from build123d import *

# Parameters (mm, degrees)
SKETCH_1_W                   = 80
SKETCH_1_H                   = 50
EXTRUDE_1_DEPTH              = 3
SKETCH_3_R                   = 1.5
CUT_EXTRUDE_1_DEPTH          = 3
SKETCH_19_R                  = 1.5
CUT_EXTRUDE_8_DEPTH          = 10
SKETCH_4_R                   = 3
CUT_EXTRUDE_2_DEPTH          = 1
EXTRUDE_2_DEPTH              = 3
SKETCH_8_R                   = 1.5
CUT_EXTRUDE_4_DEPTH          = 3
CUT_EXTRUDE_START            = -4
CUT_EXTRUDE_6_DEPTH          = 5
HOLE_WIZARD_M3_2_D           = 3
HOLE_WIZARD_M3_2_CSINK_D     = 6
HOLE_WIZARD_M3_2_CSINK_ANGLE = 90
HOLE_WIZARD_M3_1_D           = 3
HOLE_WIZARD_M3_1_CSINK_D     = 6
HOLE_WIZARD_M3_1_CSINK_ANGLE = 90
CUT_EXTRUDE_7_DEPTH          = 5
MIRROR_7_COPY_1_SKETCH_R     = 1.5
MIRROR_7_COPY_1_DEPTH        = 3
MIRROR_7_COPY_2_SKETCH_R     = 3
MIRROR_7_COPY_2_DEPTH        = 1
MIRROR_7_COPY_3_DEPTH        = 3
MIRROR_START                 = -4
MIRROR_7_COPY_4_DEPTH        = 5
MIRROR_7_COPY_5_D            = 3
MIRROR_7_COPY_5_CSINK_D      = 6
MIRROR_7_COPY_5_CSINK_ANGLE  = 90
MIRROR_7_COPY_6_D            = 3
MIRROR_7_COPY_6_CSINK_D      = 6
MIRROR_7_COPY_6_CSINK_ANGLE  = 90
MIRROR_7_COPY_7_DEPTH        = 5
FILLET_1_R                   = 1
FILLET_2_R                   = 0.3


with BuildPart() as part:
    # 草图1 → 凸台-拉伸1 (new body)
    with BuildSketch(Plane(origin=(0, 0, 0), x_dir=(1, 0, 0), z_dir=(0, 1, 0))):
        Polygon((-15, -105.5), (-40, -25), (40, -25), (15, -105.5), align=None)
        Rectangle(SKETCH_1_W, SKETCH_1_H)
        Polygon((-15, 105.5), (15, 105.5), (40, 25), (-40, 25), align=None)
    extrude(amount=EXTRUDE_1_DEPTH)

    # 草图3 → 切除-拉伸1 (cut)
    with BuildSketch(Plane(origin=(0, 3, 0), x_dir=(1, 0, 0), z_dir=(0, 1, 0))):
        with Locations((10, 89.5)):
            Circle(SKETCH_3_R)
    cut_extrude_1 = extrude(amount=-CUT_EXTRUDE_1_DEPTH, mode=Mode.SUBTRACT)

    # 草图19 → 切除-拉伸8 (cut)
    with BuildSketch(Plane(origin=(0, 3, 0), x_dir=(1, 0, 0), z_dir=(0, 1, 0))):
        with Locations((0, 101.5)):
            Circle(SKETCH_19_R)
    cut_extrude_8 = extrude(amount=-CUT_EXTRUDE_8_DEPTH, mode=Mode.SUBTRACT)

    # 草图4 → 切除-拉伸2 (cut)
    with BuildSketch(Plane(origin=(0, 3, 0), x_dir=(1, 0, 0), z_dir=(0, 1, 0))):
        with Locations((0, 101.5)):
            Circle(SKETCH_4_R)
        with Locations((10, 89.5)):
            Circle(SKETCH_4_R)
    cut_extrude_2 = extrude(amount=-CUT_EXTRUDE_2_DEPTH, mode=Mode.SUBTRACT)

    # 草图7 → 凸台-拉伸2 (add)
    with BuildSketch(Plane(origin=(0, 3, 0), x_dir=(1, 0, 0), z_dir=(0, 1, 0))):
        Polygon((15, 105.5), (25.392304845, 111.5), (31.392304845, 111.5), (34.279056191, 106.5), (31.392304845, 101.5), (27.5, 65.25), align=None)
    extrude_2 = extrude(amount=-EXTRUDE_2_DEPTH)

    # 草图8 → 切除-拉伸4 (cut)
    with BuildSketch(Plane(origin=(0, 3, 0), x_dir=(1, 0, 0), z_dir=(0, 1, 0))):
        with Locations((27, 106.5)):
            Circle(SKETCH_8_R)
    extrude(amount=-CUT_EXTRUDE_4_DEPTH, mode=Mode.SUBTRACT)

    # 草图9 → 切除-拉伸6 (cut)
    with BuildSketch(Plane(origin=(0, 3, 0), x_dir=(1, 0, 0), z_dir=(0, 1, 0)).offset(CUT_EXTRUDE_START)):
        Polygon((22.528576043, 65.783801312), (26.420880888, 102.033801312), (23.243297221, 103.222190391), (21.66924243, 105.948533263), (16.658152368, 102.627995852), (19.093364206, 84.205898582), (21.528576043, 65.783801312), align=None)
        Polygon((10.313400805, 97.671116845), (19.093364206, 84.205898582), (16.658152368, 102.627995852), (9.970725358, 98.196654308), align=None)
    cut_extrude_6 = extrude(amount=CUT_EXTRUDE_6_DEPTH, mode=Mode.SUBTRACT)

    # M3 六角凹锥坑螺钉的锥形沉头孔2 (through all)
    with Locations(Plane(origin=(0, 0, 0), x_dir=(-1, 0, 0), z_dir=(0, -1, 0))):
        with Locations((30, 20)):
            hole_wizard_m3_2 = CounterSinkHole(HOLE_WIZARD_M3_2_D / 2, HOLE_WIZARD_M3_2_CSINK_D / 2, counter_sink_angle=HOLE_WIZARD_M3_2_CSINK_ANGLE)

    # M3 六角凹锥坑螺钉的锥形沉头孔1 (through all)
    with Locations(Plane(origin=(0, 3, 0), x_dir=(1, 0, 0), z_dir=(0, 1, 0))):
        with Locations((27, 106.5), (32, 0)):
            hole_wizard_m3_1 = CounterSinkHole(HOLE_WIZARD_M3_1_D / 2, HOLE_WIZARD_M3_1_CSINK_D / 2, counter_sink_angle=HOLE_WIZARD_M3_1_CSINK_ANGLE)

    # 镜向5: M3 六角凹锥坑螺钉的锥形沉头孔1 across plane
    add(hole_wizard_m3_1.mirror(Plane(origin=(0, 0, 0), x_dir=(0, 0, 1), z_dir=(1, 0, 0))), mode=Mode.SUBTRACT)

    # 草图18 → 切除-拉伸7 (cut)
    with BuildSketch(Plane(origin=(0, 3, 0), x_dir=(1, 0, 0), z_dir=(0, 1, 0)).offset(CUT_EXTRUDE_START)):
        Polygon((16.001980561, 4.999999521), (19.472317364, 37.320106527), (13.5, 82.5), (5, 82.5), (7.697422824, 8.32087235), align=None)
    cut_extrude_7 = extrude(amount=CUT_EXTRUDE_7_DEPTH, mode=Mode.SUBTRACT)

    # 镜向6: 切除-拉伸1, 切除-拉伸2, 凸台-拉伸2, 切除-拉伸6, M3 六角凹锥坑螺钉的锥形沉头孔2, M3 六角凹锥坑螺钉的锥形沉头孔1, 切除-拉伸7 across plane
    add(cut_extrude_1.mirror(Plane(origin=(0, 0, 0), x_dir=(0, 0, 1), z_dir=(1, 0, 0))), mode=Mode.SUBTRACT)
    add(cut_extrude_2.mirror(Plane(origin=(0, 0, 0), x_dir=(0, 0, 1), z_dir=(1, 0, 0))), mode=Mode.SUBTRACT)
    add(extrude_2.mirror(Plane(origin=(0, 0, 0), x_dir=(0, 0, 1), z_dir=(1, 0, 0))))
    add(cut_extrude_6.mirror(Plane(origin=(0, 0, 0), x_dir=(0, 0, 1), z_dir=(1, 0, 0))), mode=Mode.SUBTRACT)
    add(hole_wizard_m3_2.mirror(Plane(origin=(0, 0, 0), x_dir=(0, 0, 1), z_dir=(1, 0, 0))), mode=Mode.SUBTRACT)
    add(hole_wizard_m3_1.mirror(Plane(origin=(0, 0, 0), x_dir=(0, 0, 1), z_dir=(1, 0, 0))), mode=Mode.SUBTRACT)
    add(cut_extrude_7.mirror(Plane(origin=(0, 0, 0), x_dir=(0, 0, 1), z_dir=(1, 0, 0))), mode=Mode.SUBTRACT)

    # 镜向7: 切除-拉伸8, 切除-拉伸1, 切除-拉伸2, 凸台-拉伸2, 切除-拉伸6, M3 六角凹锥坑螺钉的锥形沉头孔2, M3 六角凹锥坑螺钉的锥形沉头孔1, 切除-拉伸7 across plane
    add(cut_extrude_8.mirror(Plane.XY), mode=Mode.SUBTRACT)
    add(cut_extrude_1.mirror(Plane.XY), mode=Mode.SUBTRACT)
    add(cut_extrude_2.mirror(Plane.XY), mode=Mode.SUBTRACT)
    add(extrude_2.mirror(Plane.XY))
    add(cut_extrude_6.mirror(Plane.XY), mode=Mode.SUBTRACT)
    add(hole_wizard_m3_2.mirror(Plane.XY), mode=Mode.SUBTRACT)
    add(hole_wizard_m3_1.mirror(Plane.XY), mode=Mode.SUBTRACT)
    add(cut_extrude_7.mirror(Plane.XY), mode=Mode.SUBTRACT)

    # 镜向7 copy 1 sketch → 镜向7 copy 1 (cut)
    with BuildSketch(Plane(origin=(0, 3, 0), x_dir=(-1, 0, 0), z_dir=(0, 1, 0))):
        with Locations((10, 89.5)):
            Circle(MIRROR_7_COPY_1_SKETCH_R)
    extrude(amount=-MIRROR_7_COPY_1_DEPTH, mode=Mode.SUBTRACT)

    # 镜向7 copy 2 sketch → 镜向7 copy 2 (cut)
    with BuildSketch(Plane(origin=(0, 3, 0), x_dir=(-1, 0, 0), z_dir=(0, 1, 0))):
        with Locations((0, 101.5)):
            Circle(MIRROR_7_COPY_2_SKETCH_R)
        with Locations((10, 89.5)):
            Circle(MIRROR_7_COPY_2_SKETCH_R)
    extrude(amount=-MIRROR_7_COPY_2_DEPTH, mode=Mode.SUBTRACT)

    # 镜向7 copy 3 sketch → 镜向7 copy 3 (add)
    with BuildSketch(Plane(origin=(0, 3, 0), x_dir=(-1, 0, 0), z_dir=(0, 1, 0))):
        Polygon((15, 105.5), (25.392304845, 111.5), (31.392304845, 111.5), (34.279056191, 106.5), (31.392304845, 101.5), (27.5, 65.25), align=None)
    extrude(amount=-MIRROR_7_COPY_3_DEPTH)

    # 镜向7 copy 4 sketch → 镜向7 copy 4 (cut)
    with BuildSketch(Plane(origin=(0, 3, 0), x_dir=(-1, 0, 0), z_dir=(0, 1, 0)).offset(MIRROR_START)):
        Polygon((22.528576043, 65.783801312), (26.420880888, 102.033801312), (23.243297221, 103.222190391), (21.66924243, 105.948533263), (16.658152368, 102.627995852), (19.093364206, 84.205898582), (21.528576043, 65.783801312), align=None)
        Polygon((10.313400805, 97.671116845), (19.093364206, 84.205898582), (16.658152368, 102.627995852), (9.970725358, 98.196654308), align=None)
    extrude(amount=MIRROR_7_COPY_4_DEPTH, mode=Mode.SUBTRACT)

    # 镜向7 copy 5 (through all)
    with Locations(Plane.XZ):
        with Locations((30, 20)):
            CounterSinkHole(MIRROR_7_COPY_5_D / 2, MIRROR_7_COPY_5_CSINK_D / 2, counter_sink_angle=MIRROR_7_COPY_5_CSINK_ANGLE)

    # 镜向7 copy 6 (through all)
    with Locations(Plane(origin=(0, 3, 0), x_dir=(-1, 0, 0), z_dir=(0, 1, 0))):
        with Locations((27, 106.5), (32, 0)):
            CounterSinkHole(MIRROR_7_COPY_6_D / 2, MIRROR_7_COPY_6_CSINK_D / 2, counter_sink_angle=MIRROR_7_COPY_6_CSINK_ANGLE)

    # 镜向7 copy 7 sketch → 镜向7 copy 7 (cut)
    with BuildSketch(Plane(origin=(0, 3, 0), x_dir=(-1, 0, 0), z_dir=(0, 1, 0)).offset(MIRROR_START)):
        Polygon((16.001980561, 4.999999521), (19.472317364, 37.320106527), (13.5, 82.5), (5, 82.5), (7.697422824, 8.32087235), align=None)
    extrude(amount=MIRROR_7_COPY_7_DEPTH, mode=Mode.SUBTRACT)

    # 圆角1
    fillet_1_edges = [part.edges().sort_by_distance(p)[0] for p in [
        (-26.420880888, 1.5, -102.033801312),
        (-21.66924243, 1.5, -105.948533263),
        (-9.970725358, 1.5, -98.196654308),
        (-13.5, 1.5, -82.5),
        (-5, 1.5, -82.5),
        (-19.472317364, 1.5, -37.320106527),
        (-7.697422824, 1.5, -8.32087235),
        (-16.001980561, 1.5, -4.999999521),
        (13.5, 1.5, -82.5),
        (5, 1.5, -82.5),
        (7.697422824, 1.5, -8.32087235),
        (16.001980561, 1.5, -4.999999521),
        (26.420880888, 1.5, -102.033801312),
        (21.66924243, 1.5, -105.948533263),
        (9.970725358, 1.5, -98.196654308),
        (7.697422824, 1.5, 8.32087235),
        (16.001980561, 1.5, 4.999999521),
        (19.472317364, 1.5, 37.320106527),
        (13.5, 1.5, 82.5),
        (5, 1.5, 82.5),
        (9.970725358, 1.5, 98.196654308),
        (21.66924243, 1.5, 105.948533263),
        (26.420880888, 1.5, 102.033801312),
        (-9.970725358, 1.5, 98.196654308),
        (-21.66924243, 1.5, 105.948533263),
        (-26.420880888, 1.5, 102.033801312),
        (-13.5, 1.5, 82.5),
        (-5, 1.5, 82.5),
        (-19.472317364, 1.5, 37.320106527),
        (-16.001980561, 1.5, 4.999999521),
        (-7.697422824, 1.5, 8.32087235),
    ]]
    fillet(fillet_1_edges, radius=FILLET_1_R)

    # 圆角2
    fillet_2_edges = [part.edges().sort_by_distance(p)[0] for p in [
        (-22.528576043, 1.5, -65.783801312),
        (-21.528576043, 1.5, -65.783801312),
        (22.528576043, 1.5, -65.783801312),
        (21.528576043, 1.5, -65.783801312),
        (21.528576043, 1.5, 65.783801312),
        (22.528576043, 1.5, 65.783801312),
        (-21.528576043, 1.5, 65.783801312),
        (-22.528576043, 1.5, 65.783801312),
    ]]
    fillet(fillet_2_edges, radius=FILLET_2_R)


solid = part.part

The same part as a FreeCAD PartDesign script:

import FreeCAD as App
import Part
import Sketcher

V = App.Vector
Q = App.Units.Quantity


def edges_at(feature, points):
    """Names of the edges that pass closest to the given points."""
    edges = feature.Shape.Edges
    near = lambda p: min(range(len(edges)), key=lambda i: edges[i].distToShape(Part.Vertex(*p))[0])
    return sorted({f"Edge{near(p) + 1}" for p in points})

doc = App.newDocument("Part")
body = doc.addObject("PartDesign::Body", "Body")

# Sketch on XZ plane
sketch1 = body.newObject("Sketcher::SketchObject", "Sketch")
sketch1.AttachmentSupport = (doc.getObject("XZ_Plane"), [""])
sketch1.MapMode = "FlatFace"
sketch1.addGeometry([
    Part.LineSegment(V(-40, 25, 0), V(-15, 105.5, 0)),  # 0
    Part.LineSegment(V(-15, 105.5, 0), V(15, 105.5, 0)),  # 1
    Part.LineSegment(V(15, 105.5, 0), V(40, 25, 0)),  # 2
    Part.LineSegment(V(40, 25, 0), V(40, -25, 0)),  # 3
    Part.LineSegment(V(40, -25, 0), V(15, -105.5, 0)),  # 4
    Part.LineSegment(V(15, -105.5, 0), V(-15, -105.5, 0)),  # 5
    Part.LineSegment(V(-15, -105.5, 0), V(-40, -25, 0)),  # 6
    Part.LineSegment(V(-40, -25, 0), V(-40, 25, 0)),  # 7
], False)
sketch1.addConstraint([
    Sketcher.Constraint("Coincident", 0, 2, 1, 1),
    Sketcher.Constraint("Coincident", 1, 2, 2, 1),
    Sketcher.Constraint("Coincident", 2, 2, 3, 1),
    Sketcher.Constraint("Coincident", 3, 2, 4, 1),
    Sketcher.Constraint("Coincident", 4, 2, 5, 1),
    Sketcher.Constraint("Coincident", 5, 2, 6, 1),
    Sketcher.Constraint("Coincident", 6, 2, 7, 1),
    Sketcher.Constraint("Coincident", 7, 2, 0, 1),
    Sketcher.Constraint("Horizontal", 1),
    Sketcher.Constraint("Vertical", 3),
    Sketcher.Constraint("Horizontal", 5),
    Sketcher.Constraint("Vertical", 7),
    Sketcher.Constraint("Symmetric", 0, 2, 4, 2, -1, 1),
    Sketcher.Constraint("Symmetric", 2, 2, 6, 2, -1, 1),
    Sketcher.Constraint("Parallel", 0, 4),
    Sketcher.Constraint("Parallel", 2, 6),
    Sketcher.Constraint("Horizontal", 3, 2, 6, 2),
    Sketcher.Constraint("Vertical", 1, 2, 4, 2),
    Sketcher.Constraint("DistanceX", 1, 1, 1, 2, Q("30 mm")),
    Sketcher.Constraint("DistanceY", 3, 2, 3, 1, Q("50 mm")),
    Sketcher.Constraint("DistanceX", -1, 1, 2, 2, Q("40 mm")),
    Sketcher.Constraint("DistanceY", 4, 2, 1, 2, Q("211 mm")),
])
pad1 = body.newObject("PartDesign::Pad", "Pad")
pad1.Profile = sketch1
pad1.Length = 3
pad1.Reversed = True

# Sketch on XZ plane
sketch2 = body.newObject("Sketcher::SketchObject", "Sketch001")
sketch2.AttachmentSupport = (doc.getObject("XZ_Plane"), [""])
sketch2.MapMode = "FlatFace"
sketch2.AttachmentOffset = App.Placement(V(0, 0, -3), App.Rotation())
sketch2.addGeometry(Part.Circle(V(10, -89.5, 0), V(0, 0, 1), 1.5), False)
sketch2.addConstraint([
    Sketcher.Constraint("Diameter", 0, Q("3 mm")),
    Sketcher.Constraint("DistanceX", -1, 1, 0, 3, Q("10 mm")),
    Sketcher.Constraint("DistanceY", 0, 3, -1, 1, Q("89.5 mm")),
])
pocket1 = body.newObject("PartDesign::Pocket", "Pocket")
pocket1.Profile = sketch2
pocket1.Length = 3
pocket1.Reversed = True

# Sketch on XZ plane
sketch3 = body.newObject("Sketcher::SketchObject", "Sketch002")
sketch3.AttachmentSupport = (doc.getObject("XZ_Plane"), [""])
sketch3.MapMode = "FlatFace"
sketch3.AttachmentOffset = App.Placement(V(0, 0, -3), App.Rotation())
sketch3.addGeometry(Part.Circle(V(0, -101.5, 0), V(0, 0, 1), 1.5), False)
sketch3.addConstraint([
    Sketcher.Constraint("PointOnObject", 0, 3, -2),
    Sketcher.Constraint("Diameter", 0, Q("3 mm")),
    Sketcher.Constraint("DistanceY", 0, 3, -1, 1, Q("101.5 mm")),
])
pocket2 = body.newObject("PartDesign::Pocket", "Pocket001")
pocket2.Profile = sketch3
pocket2.Length = 10
pocket2.Reversed = True

# Sketch on XZ plane
sketch4 = body.newObject("Sketcher::SketchObject", "Sketch003")
sketch4.AttachmentSupport = (doc.getObject("XZ_Plane"), [""])
sketch4.MapMode = "FlatFace"
sketch4.AttachmentOffset = App.Placement(V(0, 0, -3), App.Rotation())
sketch4.addGeometry([
    Part.Circle(V(0, -101.5, 0), V(0, 0, 1), 3),
    Part.Circle(V(10, -89.5, 0), V(0, 0, 1), 3),
], False)
sketch4.addConstraint([
    Sketcher.Constraint("Equal", 0, 1),
    Sketcher.Constraint("PointOnObject", 0, 3, -2),
    Sketcher.Constraint("Diameter", 0, Q("6 mm")),
    Sketcher.Constraint("DistanceX", -1, 1, 1, 3, Q("10 mm")),
    Sketcher.Constraint("DistanceY", 0, 3, 1, 3, Q("12 mm")),
    Sketcher.Constraint("DistanceY", 0, 3, -1, 1, Q("101.5 mm")),
])
pocket3 = body.newObject("PartDesign::Pocket", "Pocket002")
pocket3.Profile = sketch4
pocket3.Length = 1
pocket3.Reversed = True

# Sketch on XZ plane
sketch5 = body.newObject("Sketcher::SketchObject", "Sketch004")
sketch5.AttachmentSupport = (doc.getObject("XZ_Plane"), [""])
sketch5.MapMode = "FlatFace"
sketch5.AttachmentOffset = App.Placement(V(0, 0, -3), App.Rotation())
sketch5.addGeometry([
    Part.LineSegment(V(25.392305, -111.5, 0), V(15, -105.5, 0)),  # 0
    Part.LineSegment(V(15, -105.5, 0), V(27.5, -65.25, 0)),  # 1
    Part.LineSegment(V(27.5, -65.25, 0), V(31.392305, -101.5, 0)),  # 2
    Part.LineSegment(V(31.392305, -101.5, 0), V(34.279056, -106.5, 0)),  # 3
    Part.LineSegment(V(34.279056, -106.5, 0), V(31.392305, -111.5, 0)),  # 4
    Part.LineSegment(V(31.392305, -111.5, 0), V(25.392305, -111.5, 0)),  # 5
], False)
sketch5.addConstraint([
    Sketcher.Constraint("Coincident", 0, 2, 1, 1),
    Sketcher.Constraint("Coincident", 1, 2, 2, 1),
    Sketcher.Constraint("Coincident", 2, 2, 3, 1),
    Sketcher.Constraint("Coincident", 3, 2, 4, 1),
    Sketcher.Constraint("Coincident", 4, 2, 5, 1),
    Sketcher.Constraint("Coincident", 5, 2, 0, 1),
    Sketcher.Constraint("Horizontal", 5),
    Sketcher.Constraint("Perpendicular", 0, 4),
    Sketcher.Constraint("Vertical", 2, 2, 4, 2),
    Sketcher.Constraint("Equal", 3, 4),
    Sketcher.Constraint("DistanceX", 5, 2, 5, 1, Q("6 mm")),
    Sketcher.Constraint("Angle", 0, Q("150 deg")),
    Sketcher.Constraint("Distance", 0, Q("12 mm")),
    Sketcher.Constraint("DistanceX", -1, 1, 0, 2, Q("15 mm")),
    Sketcher.Constraint("DistanceY", 0, 2, 2, 2, Q("4 mm")),
    Sketcher.Constraint("DistanceY", 0, 2, -1, 1, Q("105.5 mm")),
    Sketcher.Constraint("DistanceX", -1, 1, 1, 2, Q("27.5 mm")),
    Sketcher.Constraint("DistanceY", 1, 2, -1, 1, Q("65.25 mm")),
])
pad2 = body.newObject("PartDesign::Pad", "Pad001")
pad2.Profile = sketch5
pad2.Length = 3

# Sketch on XZ plane
sketch6 = body.newObject("Sketcher::SketchObject", "Sketch005")
sketch6.AttachmentSupport = (doc.getObject("XZ_Plane"), [""])
sketch6.MapMode = "FlatFace"
sketch6.AttachmentOffset = App.Placement(V(0, 0, -3), App.Rotation())
sketch6.addGeometry(Part.Circle(V(27, -106.5, 0), V(0, 0, 1), 1.5), False)
sketch6.addConstraint([
    Sketcher.Constraint("Diameter", 0, Q("3 mm")),
    Sketcher.Constraint("DistanceX", -1, 1, 0, 3, Q("27 mm")),
    Sketcher.Constraint("DistanceY", 0, 3, -1, 1, Q("106.5 mm")),
])
pocket4 = body.newObject("PartDesign::Pocket", "Pocket003")
pocket4.Profile = sketch6
pocket4.Length = 3
pocket4.Reversed = True

# Sketch on XZ plane
sketch7 = body.newObject("Sketcher::SketchObject", "Sketch006")
sketch7.AttachmentSupport = (doc.getObject("XZ_Plane"), [""])
sketch7.MapMode = "FlatFace"
sketch7.AttachmentOffset = App.Placement(V(0, 0, 1), App.Rotation())
sketch7.addGeometry([
    Part.LineSegment(V(22.528576, -65.783801, 0), V(26.420881, -102.033801, 0)),  # 0
    Part.LineSegment(V(26.420881, -102.033801, 0), V(23.243297, -103.22219, 0)),  # 1
    Part.LineSegment(V(23.243297, -103.22219, 0), V(21.669242, -105.948533, 0)),  # 2
    Part.LineSegment(V(21.669242, -105.948533, 0), V(16.658152, -102.627996, 0)),  # 3
    Part.LineSegment(V(16.658152, -102.627996, 0), V(9.970725, -98.196654, 0)),  # 4
    Part.LineSegment(V(9.970725, -98.196654, 0), V(10.313401, -97.671117, 0)),  # 5
    Part.LineSegment(V(10.313401, -97.671117, 0), V(19.093364, -84.205899, 0)),  # 6
    Part.LineSegment(V(19.093364, -84.205899, 0), V(21.528576, -65.783801, 0)),  # 7
    Part.LineSegment(V(21.528576, -65.783801, 0), V(22.528576, -65.783801, 0)),  # 8
], False)
sketch7.addConstraint([
    Sketcher.Constraint("Coincident", 0, 2, 1, 1),
    Sketcher.Constraint("Coincident", 1, 2, 2, 1),
    Sketcher.Constraint("Coincident", 2, 2, 3, 1),
    Sketcher.Constraint("Coincident", 3, 2, 4, 1),
    Sketcher.Constraint("Coincident", 4, 2, 5, 1),
    Sketcher.Constraint("Coincident", 5, 2, 6, 1),
    Sketcher.Constraint("Coincident", 6, 2, 7, 1),
    Sketcher.Constraint("Coincident", 7, 2, 8, 1),
    Sketcher.Constraint("Coincident", 8, 2, 0, 1),
    Sketcher.Constraint("Horizontal", 8),
    Sketcher.Constraint("Parallel", 3, 4),
    Sketcher.Constraint("Parallel", 5, 6),
    Sketcher.Constraint("DistanceX", 8, 1, 8, 2, Q("1 mm")),
    Sketcher.Constraint("Angle", 2, Q("-120 deg")),
    Sketcher.Constraint("DistanceY", 0, 2, 7, 2, Q("36.25 mm")),
    Sketcher.Constraint("DistanceY", 0, 2, -1, 1, Q("102.033801 mm")),
    Sketcher.Constraint("DistanceX", -1, 1, 5, 2, Q("10.313401 mm")),
    Sketcher.Constraint("DistanceY", 6, 2, -1, 1, Q("84.205899 mm")),
    Sketcher.Constraint("Distance", 2, Q("3.14811 mm")),
    Sketcher.Constraint("Distance", 5, Q("0.627388 mm")),
    Sketcher.Constraint("Distance", 6, Q("16.074821 mm")),
    Sketcher.Constraint("DistanceX", -1, 1, 0, 2, Q("26.420881 mm")),
    Sketcher.Constraint("DistanceY", 1, 2, -1, 1, Q("103.22219 mm")),
    Sketcher.Constraint("DistanceX", 2, 2, 0, 2, Q("4.751638 mm")),
    Sketcher.Constraint("DistanceX", 3, 2, 2, 2, Q("5.01109 mm")),
    Sketcher.Constraint("DistanceY", 3, 2, 4, 2, Q("4.431342 mm")),
    Sketcher.Constraint("DistanceX", 6, 2, 7, 2, Q("2.435212 mm")),
])
pocket5 = body.newObject("PartDesign::Pocket", "Pocket004")
pocket5.Profile = sketch7
pocket5.Length = 5

# Sketch on XZ plane
sketch8 = body.newObject("Sketcher::SketchObject", "Sketch007")
sketch8.AttachmentSupport = (doc.getObject("XZ_Plane"), [""])
sketch8.MapMode = "FlatFace"
sketch8.addGeometry(Part.Circle(V(-30, -20, 0), V(0, 0, 1), 1.5), False)
sketch8.addConstraint([
    Sketcher.Constraint("Diameter", 0, Q("3 mm")),
    Sketcher.Constraint("DistanceX", 0, 3, -1, 1, Q("30 mm")),
    Sketcher.Constraint("DistanceY", 0, 3, -1, 1, Q("20 mm")),
])
doc.recompute()
hole = body.newObject("PartDesign::Hole", "Hole")
hole.Profile = sketch8
hole.ThreadType = "None"
hole.Diameter = 3
hole.DepthType = "ThroughAll"
hole.HoleCutType = "Countersink"
hole.HoleCutDiameter = 6
hole.HoleCutCountersinkAngle = 90

# Sketch on XZ plane
sketch9 = body.newObject("Sketcher::SketchObject", "Sketch008")
sketch9.AttachmentSupport = (doc.getObject("XZ_Plane"), [""])
sketch9.MapMode = "FlatFace"
sketch9.AttachmentOffset = App.Placement(V(0, 0, -3), App.Rotation())
sketch9.addGeometry([
    Part.Circle(V(27, -106.5, 0), V(0, 0, 1), 1.5),
    Part.Circle(V(32, 0, 0), V(0, 0, 1), 1.5),
], False)
sketch9.addConstraint([
    Sketcher.Constraint("Equal", 0, 1),
    Sketcher.Constraint("PointOnObject", 1, 3, -1),
    Sketcher.Constraint("Diameter", 0, Q("3 mm")),
    Sketcher.Constraint("DistanceX", -1, 1, 0, 3, Q("27 mm")),
    Sketcher.Constraint("DistanceX", -1, 1, 1, 3, Q("32 mm")),
    Sketcher.Constraint("DistanceY", 0, 3, -1, 1, Q("106.5 mm")),
])
doc.recompute()
hole2 = body.newObject("PartDesign::Hole", "Hole001")
hole2.Profile = sketch9
hole2.ThreadType = "None"
hole2.Diameter = 3
hole2.DepthType = "ThroughAll"
hole2.HoleCutType = "Countersink"
hole2.HoleCutDiameter = 6
hole2.HoleCutCountersinkAngle = 90
hole2.Reversed = True
doc.recompute()

mirrored = body.newObject("PartDesign::Mirrored", "Mirrored")
mirrored.Originals = [hole2]
mirrored.MirrorPlane = (doc.getObject("YZ_Plane"), [""])
body.Tip = mirrored

# Sketch on XZ plane
sketch10 = body.newObject("Sketcher::SketchObject", "Sketch009")
sketch10.AttachmentSupport = (doc.getObject("XZ_Plane"), [""])
sketch10.MapMode = "FlatFace"
sketch10.AttachmentOffset = App.Placement(V(0, 0, 1), App.Rotation())
sketch10.addGeometry([
    Part.LineSegment(V(16.001981, -5, 0), V(19.472317, -37.320107, 0)),  # 0
    Part.LineSegment(V(19.472317, -37.320107, 0), V(13.5, -82.5, 0)),  # 1
    Part.LineSegment(V(13.5, -82.5, 0), V(5, -82.5, 0)),  # 2
    Part.LineSegment(V(5, -82.5, 0), V(7.697423, -8.320872, 0)),  # 3
    Part.LineSegment(V(7.697423, -8.320872, 0), V(16.001981, -5, 0)),  # 4
], False)
sketch10.addConstraint([
    Sketcher.Constraint("Coincident", 0, 2, 1, 1),
    Sketcher.Constraint("Coincident", 1, 2, 2, 1),
    Sketcher.Constraint("Coincident", 2, 2, 3, 1),
    Sketcher.Constraint("Coincident", 3, 2, 4, 1),
    Sketcher.Constraint("Coincident", 4, 2, 0, 1),
    Sketcher.Constraint("Horizontal", 2),
    Sketcher.Constraint("DistanceX", 2, 2, 2, 1, Q("8.5 mm")),
    Sketcher.Constraint("DistanceX", -1, 1, 2, 2, Q("5 mm")),
    Sketcher.Constraint("DistanceY", 4, 2, -1, 1, Q("5 mm")),
    Sketcher.Constraint("DistanceY", 1, 2, -1, 1, Q("82.5 mm")),
    Sketcher.Constraint("Distance", 4, Q("8.94393 mm")),
    Sketcher.Constraint("DistanceX", -1, 1, 4, 2, Q("16.001981 mm")),
    Sketcher.Constraint("Distance", 0, Q("32.505885 mm")),
    Sketcher.Constraint("Distance", 1, Q("45.572923 mm")),
    Sketcher.Constraint("Distance", 3, Q("74.228155 mm")),
])
pocket6 = body.newObject("PartDesign::Pocket", "Pocket005")
pocket6.Profile = sketch10
pocket6.Length = 5
doc.recompute()

mirrored2 = body.newObject("PartDesign::Mirrored", "Mirrored001")
mirrored2.Originals = [pocket1, pocket3, pad2, pocket5, hole, hole2, pocket6]
mirrored2.MirrorPlane = (doc.getObject("YZ_Plane"), [""])
body.Tip = mirrored2
doc.recompute()

mirrored3 = body.newObject("PartDesign::Mirrored", "Mirrored002")
mirrored3.Originals = [pocket2, pocket1, pocket3, pad2, pocket5, hole, hole2, pocket6]
mirrored3.MirrorPlane = (doc.getObject("XY_Plane"), [""])
body.Tip = mirrored3

# Sketch on XZ plane
sketch11 = body.newObject("Sketcher::SketchObject", "Sketch010")
sketch11.AttachmentSupport = (doc.getObject("XZ_Plane"), [""])
sketch11.MapMode = "FlatFace"
sketch11.AttachmentOffset = App.Placement(V(0, 0, -3), App.Rotation())
sketch11.addGeometry(Part.Circle(V(-10, 89.5, 0), V(0, 0, 1), 1.5), False)
sketch11.addConstraint([
    Sketcher.Constraint("Diameter", 0, Q("3 mm")),
    Sketcher.Constraint("DistanceX", 0, 3, -1, 1, Q("10 mm")),
    Sketcher.Constraint("DistanceY", -1, 1, 0, 3, Q("89.5 mm")),
])
pocket7 = body.newObject("PartDesign::Pocket", "Pocket006")
pocket7.Profile = sketch11
pocket7.Length = 3
pocket7.Reversed = True

# Sketch on XZ plane
sketch12 = body.newObject("Sketcher::SketchObject", "Sketch011")
sketch12.AttachmentSupport = (doc.getObject("XZ_Plane"), [""])
sketch12.MapMode = "FlatFace"
sketch12.AttachmentOffset = App.Placement(V(0, 0, -3), App.Rotation())
sketch12.addGeometry([
    Part.Circle(V(0, 101.5, 0), V(0, 0, 1), 3),
    Part.Circle(V(-10, 89.5, 0), V(0, 0, 1), 3),
], False)
sketch12.addConstraint([
    Sketcher.Constraint("Equal", 0, 1),
    Sketcher.Constraint("PointOnObject", 0, 3, -2),
    Sketcher.Constraint("Diameter", 0, Q("6 mm")),
    Sketcher.Constraint("DistanceX", 1, 3, -1, 1, Q("10 mm")),
    Sketcher.Constraint("DistanceY", 1, 3, 0, 3, Q("12 mm")),
    Sketcher.Constraint("DistanceY", -1, 1, 0, 3, Q("101.5 mm")),
])
pocket8 = body.newObject("PartDesign::Pocket", "Pocket007")
pocket8.Profile = sketch12
pocket8.Length = 1
pocket8.Reversed = True

# Sketch on XZ plane
sketch13 = body.newObject("Sketcher::SketchObject", "Sketch012")
sketch13.AttachmentSupport = (doc.getObject("XZ_Plane"), [""])
sketch13.MapMode = "FlatFace"
sketch13.AttachmentOffset = App.Placement(V(0, 0, -3), App.Rotation())
sketch13.addGeometry([
    Part.LineSegment(V(-25.392305, 111.5, 0), V(-15, 105.5, 0)),  # 0
    Part.LineSegment(V(-15, 105.5, 0), V(-27.5, 65.25, 0)),  # 1
    Part.LineSegment(V(-27.5, 65.25, 0), V(-31.392305, 101.5, 0)),  # 2
    Part.LineSegment(V(-31.392305, 101.5, 0), V(-34.279056, 106.5, 0)),  # 3
    Part.LineSegment(V(-34.279056, 106.5, 0), V(-31.392305, 111.5, 0)),  # 4
    Part.LineSegment(V(-31.392305, 111.5, 0), V(-25.392305, 111.5, 0)),  # 5
], False)
sketch13.addConstraint([
    Sketcher.Constraint("Coincident", 0, 2, 1, 1),
    Sketcher.Constraint("Coincident", 1, 2, 2, 1),
    Sketcher.Constraint("Coincident", 2, 2, 3, 1),
    Sketcher.Constraint("Coincident", 3, 2, 4, 1),
    Sketcher.Constraint("Coincident", 4, 2, 5, 1),
    Sketcher.Constraint("Coincident", 5, 2, 0, 1),
    Sketcher.Constraint("Horizontal", 5),
    Sketcher.Constraint("Perpendicular", 0, 4),
    Sketcher.Constraint("Vertical", 2, 2, 4, 2),
    Sketcher.Constraint("Equal", 3, 4),
    Sketcher.Constraint("DistanceX", 5, 1, 5, 2, Q("6 mm")),
    Sketcher.Constraint("Angle", 0, Q("-30 deg")),
    Sketcher.Constraint("Distance", 0, Q("12 mm")),
    Sketcher.Constraint("DistanceX", 0, 2, -1, 1, Q("15 mm")),
    Sketcher.Constraint("DistanceY", 2, 2, 0, 2, Q("4 mm")),
    Sketcher.Constraint("DistanceY", -1, 1, 0, 2, Q("105.5 mm")),
    Sketcher.Constraint("DistanceX", 1, 2, -1, 1, Q("27.5 mm")),
    Sketcher.Constraint("DistanceY", -1, 1, 1, 2, Q("65.25 mm")),
])
pad3 = body.newObject("PartDesign::Pad", "Pad002")
pad3.Profile = sketch13
pad3.Length = 3

# Sketch on XZ plane
sketch14 = body.newObject("Sketcher::SketchObject", "Sketch013")
sketch14.AttachmentSupport = (doc.getObject("XZ_Plane"), [""])
sketch14.MapMode = "FlatFace"
sketch14.AttachmentOffset = App.Placement(V(0, 0, 1), App.Rotation())
sketch14.addGeometry([
    Part.LineSegment(V(-22.528576, 65.783801, 0), V(-26.420881, 102.033801, 0)),  # 0
    Part.LineSegment(V(-26.420881, 102.033801, 0), V(-23.243297, 103.22219, 0)),  # 1
    Part.LineSegment(V(-23.243297, 103.22219, 0), V(-21.669242, 105.948533, 0)),  # 2
    Part.LineSegment(V(-21.669242, 105.948533, 0), V(-16.658152, 102.627996, 0)),  # 3
    Part.LineSegment(V(-16.658152, 102.627996, 0), V(-9.970725, 98.196654, 0)),  # 4
    Part.LineSegment(V(-9.970725, 98.196654, 0), V(-10.313401, 97.671117, 0)),  # 5
    Part.LineSegment(V(-10.313401, 97.671117, 0), V(-19.093364, 84.205899, 0)),  # 6
    Part.LineSegment(V(-19.093364, 84.205899, 0), V(-21.528576, 65.783801, 0)),  # 7
    Part.LineSegment(V(-21.528576, 65.783801, 0), V(-22.528576, 65.783801, 0)),  # 8
], False)
sketch14.addConstraint([
    Sketcher.Constraint("Coincident", 0, 2, 1, 1),
    Sketcher.Constraint("Coincident", 1, 2, 2, 1),
    Sketcher.Constraint("Coincident", 2, 2, 3, 1),
    Sketcher.Constraint("Coincident", 3, 2, 4, 1),
    Sketcher.Constraint("Coincident", 4, 2, 5, 1),
    Sketcher.Constraint("Coincident", 5, 2, 6, 1),
    Sketcher.Constraint("Coincident", 6, 2, 7, 1),
    Sketcher.Constraint("Coincident", 7, 2, 8, 1),
    Sketcher.Constraint("Coincident", 8, 2, 0, 1),
    Sketcher.Constraint("Horizontal", 8),
    Sketcher.Constraint("Parallel", 3, 4),
    Sketcher.Constraint("Parallel", 5, 6),
    Sketcher.Constraint("DistanceX", 8, 2, 8, 1, Q("1 mm")),
    Sketcher.Constraint("Angle", 2, Q("60 deg")),
    Sketcher.Constraint("DistanceY", 7, 2, 0, 2, Q("36.25 mm")),
    Sketcher.Constraint("DistanceY", -1, 1, 0, 2, Q("102.033801 mm")),
    Sketcher.Constraint("DistanceX", 5, 2, -1, 1, Q("10.313401 mm")),
    Sketcher.Constraint("DistanceY", -1, 1, 6, 2, Q("84.205899 mm")),
    Sketcher.Constraint("Distance", 2, Q("3.14811 mm")),
    Sketcher.Constraint("Distance", 5, Q("0.627388 mm")),
    Sketcher.Constraint("Distance", 6, Q("16.074821 mm")),
    Sketcher.Constraint("DistanceX", 0, 2, -1, 1, Q("26.420881 mm")),
    Sketcher.Constraint("DistanceY", -1, 1, 1, 2, Q("103.22219 mm")),
    Sketcher.Constraint("DistanceX", 0, 2, 2, 2, Q("4.751638 mm")),
    Sketcher.Constraint("DistanceX", 2, 2, 3, 2, Q("5.01109 mm")),
    Sketcher.Constraint("DistanceY", 4, 2, 3, 2, Q("4.431342 mm")),
    Sketcher.Constraint("DistanceX", 7, 2, 6, 2, Q("2.435212 mm")),
])
pocket9 = body.newObject("PartDesign::Pocket", "Pocket008")
pocket9.Profile = sketch14
pocket9.Length = 5

# Sketch on XZ plane
sketch15 = body.newObject("Sketcher::SketchObject", "Sketch014")
sketch15.AttachmentSupport = (doc.getObject("XZ_Plane"), [""])
sketch15.MapMode = "FlatFace"
sketch15.addGeometry(Part.Circle(V(30, 20, 0), V(0, 0, 1), 1.5), False)
sketch15.addConstraint([
    Sketcher.Constraint("Diameter", 0, Q("3 mm")),
    Sketcher.Constraint("DistanceX", -1, 1, 0, 3, Q("30 mm")),
    Sketcher.Constraint("DistanceY", -1, 1, 0, 3, Q("20 mm")),
])
doc.recompute()
hole3 = body.newObject("PartDesign::Hole", "Hole002")
hole3.Profile = sketch15
hole3.ThreadType = "None"
hole3.Diameter = 3
hole3.DepthType = "ThroughAll"
hole3.HoleCutType = "Countersink"
hole3.HoleCutDiameter = 6
hole3.HoleCutCountersinkAngle = 90

# Sketch on XZ plane
sketch16 = body.newObject("Sketcher::SketchObject", "Sketch015")
sketch16.AttachmentSupport = (doc.getObject("XZ_Plane"), [""])
sketch16.MapMode = "FlatFace"
sketch16.AttachmentOffset = App.Placement(V(0, 0, -3), App.Rotation())
sketch16.addGeometry([
    Part.Circle(V(-27, 106.5, 0), V(0, 0, 1), 1.5),
    Part.Circle(V(-32, 0, 0), V(0, 0, 1), 1.5),
], False)
sketch16.addConstraint([
    Sketcher.Constraint("Equal", 0, 1),
    Sketcher.Constraint("PointOnObject", 1, 3, -1),
    Sketcher.Constraint("Diameter", 0, Q("3 mm")),
    Sketcher.Constraint("DistanceX", 0, 3, -1, 1, Q("27 mm")),
    Sketcher.Constraint("DistanceX", 1, 3, -1, 1, Q("32 mm")),
    Sketcher.Constraint("DistanceY", -1, 1, 0, 3, Q("106.5 mm")),
])
doc.recompute()
hole4 = body.newObject("PartDesign::Hole", "Hole003")
hole4.Profile = sketch16
hole4.ThreadType = "None"
hole4.Diameter = 3
hole4.DepthType = "ThroughAll"
hole4.HoleCutType = "Countersink"
hole4.HoleCutDiameter = 6
hole4.HoleCutCountersinkAngle = 90
hole4.Reversed = True

# Sketch on XZ plane
sketch17 = body.newObject("Sketcher::SketchObject", "Sketch016")
sketch17.AttachmentSupport = (doc.getObject("XZ_Plane"), [""])
sketch17.MapMode = "FlatFace"
sketch17.AttachmentOffset = App.Placement(V(0, 0, 1), App.Rotation())
sketch17.addGeometry([
    Part.LineSegment(V(-16.001981, 5, 0), V(-19.472317, 37.320107, 0)),  # 0
    Part.LineSegment(V(-19.472317, 37.320107, 0), V(-13.5, 82.5, 0)),  # 1
    Part.LineSegment(V(-13.5, 82.5, 0), V(-5, 82.5, 0)),  # 2
    Part.LineSegment(V(-5, 82.5, 0), V(-7.697423, 8.320872, 0)),  # 3
    Part.LineSegment(V(-7.697423, 8.320872, 0), V(-16.001981, 5, 0)),  # 4
], False)
sketch17.addConstraint([
    Sketcher.Constraint("Coincident", 0, 2, 1, 1),
    Sketcher.Constraint("Coincident", 1, 2, 2, 1),
    Sketcher.Constraint("Coincident", 2, 2, 3, 1),
    Sketcher.Constraint("Coincident", 3, 2, 4, 1),
    Sketcher.Constraint("Coincident", 4, 2, 0, 1),
    Sketcher.Constraint("Horizontal", 2),
    Sketcher.Constraint("DistanceX", 2, 1, 2, 2, Q("8.5 mm")),
    Sketcher.Constraint("DistanceX", 2, 2, -1, 1, Q("5 mm")),
    Sketcher.Constraint("DistanceY", -1, 1, 4, 2, Q("5 mm")),
    Sketcher.Constraint("DistanceY", -1, 1, 1, 2, Q("82.5 mm")),
    Sketcher.Constraint("Distance", 4, Q("8.94393 mm")),
    Sketcher.Constraint("DistanceX", 4, 2, -1, 1, Q("16.001981 mm")),
    Sketcher.Constraint("Distance", 0, Q("32.505885 mm")),
    Sketcher.Constraint("Distance", 1, Q("45.572923 mm")),
    Sketcher.Constraint("Distance", 3, Q("74.228155 mm")),
])
pocket10 = body.newObject("PartDesign::Pocket", "Pocket009")
pocket10.Profile = sketch17
pocket10.Length = 5
doc.recompute()

fillet = body.newObject("PartDesign::Fillet", "Fillet")
fillet.Base = (pocket10, edges_at(pocket10, [
    (-26.421, 1.5, -102.034),
    (-21.669, 1.5, -105.949),
    (-9.971, 1.5, -98.197),
    (-13.5, 1.5, -82.5),
    (-5, 1.5, -82.5),
    (-19.472, 1.5, -37.32),
    (-7.697, 1.5, -8.321),
    (-16.002, 1.5, -5),
    (13.5, 1.5, -82.5),
    (5, 1.5, -82.5),
    (7.697, 1.5, -8.321),
    (16.002, 1.5, -5),
    (26.421, 1.5, -102.034),
    (21.669, 1.5, -105.949),
    (9.971, 1.5, -98.197),
    (7.697, 1.5, 8.321),
    (16.002, 1.5, 5),
    (19.472, 1.5, 37.32),
    (13.5, 1.5, 82.5),
    (5, 1.5, 82.5),
    (9.971, 1.5, 98.197),
    (21.669, 1.5, 105.949),
    (26.421, 1.5, 102.034),
    (-9.971, 1.5, 98.197),
    (-21.669, 1.5, 105.949),
    (-26.421, 1.5, 102.034),
    (-13.5, 1.5, 82.5),
    (-5, 1.5, 82.5),
    (-19.472, 1.5, 37.32),
    (-16.002, 1.5, 5),
    (-7.697, 1.5, 8.321),
]))
fillet.Radius = 1
doc.recompute()

fillet2 = body.newObject("PartDesign::Fillet", "Fillet001")
fillet2.Base = (fillet, edges_at(fillet, [
    (-22.529, 1.5, -65.784),
    (-21.529, 1.5, -65.784),
    (22.529, 1.5, -65.784),
    (21.529, 1.5, -65.784),
    (21.529, 1.5, 65.784),
    (22.529, 1.5, 65.784),
    (-21.529, 1.5, 65.784),
    (-22.529, 1.5, 65.784),
]))
fillet2.Radius = 0.3

doc.recompute()
